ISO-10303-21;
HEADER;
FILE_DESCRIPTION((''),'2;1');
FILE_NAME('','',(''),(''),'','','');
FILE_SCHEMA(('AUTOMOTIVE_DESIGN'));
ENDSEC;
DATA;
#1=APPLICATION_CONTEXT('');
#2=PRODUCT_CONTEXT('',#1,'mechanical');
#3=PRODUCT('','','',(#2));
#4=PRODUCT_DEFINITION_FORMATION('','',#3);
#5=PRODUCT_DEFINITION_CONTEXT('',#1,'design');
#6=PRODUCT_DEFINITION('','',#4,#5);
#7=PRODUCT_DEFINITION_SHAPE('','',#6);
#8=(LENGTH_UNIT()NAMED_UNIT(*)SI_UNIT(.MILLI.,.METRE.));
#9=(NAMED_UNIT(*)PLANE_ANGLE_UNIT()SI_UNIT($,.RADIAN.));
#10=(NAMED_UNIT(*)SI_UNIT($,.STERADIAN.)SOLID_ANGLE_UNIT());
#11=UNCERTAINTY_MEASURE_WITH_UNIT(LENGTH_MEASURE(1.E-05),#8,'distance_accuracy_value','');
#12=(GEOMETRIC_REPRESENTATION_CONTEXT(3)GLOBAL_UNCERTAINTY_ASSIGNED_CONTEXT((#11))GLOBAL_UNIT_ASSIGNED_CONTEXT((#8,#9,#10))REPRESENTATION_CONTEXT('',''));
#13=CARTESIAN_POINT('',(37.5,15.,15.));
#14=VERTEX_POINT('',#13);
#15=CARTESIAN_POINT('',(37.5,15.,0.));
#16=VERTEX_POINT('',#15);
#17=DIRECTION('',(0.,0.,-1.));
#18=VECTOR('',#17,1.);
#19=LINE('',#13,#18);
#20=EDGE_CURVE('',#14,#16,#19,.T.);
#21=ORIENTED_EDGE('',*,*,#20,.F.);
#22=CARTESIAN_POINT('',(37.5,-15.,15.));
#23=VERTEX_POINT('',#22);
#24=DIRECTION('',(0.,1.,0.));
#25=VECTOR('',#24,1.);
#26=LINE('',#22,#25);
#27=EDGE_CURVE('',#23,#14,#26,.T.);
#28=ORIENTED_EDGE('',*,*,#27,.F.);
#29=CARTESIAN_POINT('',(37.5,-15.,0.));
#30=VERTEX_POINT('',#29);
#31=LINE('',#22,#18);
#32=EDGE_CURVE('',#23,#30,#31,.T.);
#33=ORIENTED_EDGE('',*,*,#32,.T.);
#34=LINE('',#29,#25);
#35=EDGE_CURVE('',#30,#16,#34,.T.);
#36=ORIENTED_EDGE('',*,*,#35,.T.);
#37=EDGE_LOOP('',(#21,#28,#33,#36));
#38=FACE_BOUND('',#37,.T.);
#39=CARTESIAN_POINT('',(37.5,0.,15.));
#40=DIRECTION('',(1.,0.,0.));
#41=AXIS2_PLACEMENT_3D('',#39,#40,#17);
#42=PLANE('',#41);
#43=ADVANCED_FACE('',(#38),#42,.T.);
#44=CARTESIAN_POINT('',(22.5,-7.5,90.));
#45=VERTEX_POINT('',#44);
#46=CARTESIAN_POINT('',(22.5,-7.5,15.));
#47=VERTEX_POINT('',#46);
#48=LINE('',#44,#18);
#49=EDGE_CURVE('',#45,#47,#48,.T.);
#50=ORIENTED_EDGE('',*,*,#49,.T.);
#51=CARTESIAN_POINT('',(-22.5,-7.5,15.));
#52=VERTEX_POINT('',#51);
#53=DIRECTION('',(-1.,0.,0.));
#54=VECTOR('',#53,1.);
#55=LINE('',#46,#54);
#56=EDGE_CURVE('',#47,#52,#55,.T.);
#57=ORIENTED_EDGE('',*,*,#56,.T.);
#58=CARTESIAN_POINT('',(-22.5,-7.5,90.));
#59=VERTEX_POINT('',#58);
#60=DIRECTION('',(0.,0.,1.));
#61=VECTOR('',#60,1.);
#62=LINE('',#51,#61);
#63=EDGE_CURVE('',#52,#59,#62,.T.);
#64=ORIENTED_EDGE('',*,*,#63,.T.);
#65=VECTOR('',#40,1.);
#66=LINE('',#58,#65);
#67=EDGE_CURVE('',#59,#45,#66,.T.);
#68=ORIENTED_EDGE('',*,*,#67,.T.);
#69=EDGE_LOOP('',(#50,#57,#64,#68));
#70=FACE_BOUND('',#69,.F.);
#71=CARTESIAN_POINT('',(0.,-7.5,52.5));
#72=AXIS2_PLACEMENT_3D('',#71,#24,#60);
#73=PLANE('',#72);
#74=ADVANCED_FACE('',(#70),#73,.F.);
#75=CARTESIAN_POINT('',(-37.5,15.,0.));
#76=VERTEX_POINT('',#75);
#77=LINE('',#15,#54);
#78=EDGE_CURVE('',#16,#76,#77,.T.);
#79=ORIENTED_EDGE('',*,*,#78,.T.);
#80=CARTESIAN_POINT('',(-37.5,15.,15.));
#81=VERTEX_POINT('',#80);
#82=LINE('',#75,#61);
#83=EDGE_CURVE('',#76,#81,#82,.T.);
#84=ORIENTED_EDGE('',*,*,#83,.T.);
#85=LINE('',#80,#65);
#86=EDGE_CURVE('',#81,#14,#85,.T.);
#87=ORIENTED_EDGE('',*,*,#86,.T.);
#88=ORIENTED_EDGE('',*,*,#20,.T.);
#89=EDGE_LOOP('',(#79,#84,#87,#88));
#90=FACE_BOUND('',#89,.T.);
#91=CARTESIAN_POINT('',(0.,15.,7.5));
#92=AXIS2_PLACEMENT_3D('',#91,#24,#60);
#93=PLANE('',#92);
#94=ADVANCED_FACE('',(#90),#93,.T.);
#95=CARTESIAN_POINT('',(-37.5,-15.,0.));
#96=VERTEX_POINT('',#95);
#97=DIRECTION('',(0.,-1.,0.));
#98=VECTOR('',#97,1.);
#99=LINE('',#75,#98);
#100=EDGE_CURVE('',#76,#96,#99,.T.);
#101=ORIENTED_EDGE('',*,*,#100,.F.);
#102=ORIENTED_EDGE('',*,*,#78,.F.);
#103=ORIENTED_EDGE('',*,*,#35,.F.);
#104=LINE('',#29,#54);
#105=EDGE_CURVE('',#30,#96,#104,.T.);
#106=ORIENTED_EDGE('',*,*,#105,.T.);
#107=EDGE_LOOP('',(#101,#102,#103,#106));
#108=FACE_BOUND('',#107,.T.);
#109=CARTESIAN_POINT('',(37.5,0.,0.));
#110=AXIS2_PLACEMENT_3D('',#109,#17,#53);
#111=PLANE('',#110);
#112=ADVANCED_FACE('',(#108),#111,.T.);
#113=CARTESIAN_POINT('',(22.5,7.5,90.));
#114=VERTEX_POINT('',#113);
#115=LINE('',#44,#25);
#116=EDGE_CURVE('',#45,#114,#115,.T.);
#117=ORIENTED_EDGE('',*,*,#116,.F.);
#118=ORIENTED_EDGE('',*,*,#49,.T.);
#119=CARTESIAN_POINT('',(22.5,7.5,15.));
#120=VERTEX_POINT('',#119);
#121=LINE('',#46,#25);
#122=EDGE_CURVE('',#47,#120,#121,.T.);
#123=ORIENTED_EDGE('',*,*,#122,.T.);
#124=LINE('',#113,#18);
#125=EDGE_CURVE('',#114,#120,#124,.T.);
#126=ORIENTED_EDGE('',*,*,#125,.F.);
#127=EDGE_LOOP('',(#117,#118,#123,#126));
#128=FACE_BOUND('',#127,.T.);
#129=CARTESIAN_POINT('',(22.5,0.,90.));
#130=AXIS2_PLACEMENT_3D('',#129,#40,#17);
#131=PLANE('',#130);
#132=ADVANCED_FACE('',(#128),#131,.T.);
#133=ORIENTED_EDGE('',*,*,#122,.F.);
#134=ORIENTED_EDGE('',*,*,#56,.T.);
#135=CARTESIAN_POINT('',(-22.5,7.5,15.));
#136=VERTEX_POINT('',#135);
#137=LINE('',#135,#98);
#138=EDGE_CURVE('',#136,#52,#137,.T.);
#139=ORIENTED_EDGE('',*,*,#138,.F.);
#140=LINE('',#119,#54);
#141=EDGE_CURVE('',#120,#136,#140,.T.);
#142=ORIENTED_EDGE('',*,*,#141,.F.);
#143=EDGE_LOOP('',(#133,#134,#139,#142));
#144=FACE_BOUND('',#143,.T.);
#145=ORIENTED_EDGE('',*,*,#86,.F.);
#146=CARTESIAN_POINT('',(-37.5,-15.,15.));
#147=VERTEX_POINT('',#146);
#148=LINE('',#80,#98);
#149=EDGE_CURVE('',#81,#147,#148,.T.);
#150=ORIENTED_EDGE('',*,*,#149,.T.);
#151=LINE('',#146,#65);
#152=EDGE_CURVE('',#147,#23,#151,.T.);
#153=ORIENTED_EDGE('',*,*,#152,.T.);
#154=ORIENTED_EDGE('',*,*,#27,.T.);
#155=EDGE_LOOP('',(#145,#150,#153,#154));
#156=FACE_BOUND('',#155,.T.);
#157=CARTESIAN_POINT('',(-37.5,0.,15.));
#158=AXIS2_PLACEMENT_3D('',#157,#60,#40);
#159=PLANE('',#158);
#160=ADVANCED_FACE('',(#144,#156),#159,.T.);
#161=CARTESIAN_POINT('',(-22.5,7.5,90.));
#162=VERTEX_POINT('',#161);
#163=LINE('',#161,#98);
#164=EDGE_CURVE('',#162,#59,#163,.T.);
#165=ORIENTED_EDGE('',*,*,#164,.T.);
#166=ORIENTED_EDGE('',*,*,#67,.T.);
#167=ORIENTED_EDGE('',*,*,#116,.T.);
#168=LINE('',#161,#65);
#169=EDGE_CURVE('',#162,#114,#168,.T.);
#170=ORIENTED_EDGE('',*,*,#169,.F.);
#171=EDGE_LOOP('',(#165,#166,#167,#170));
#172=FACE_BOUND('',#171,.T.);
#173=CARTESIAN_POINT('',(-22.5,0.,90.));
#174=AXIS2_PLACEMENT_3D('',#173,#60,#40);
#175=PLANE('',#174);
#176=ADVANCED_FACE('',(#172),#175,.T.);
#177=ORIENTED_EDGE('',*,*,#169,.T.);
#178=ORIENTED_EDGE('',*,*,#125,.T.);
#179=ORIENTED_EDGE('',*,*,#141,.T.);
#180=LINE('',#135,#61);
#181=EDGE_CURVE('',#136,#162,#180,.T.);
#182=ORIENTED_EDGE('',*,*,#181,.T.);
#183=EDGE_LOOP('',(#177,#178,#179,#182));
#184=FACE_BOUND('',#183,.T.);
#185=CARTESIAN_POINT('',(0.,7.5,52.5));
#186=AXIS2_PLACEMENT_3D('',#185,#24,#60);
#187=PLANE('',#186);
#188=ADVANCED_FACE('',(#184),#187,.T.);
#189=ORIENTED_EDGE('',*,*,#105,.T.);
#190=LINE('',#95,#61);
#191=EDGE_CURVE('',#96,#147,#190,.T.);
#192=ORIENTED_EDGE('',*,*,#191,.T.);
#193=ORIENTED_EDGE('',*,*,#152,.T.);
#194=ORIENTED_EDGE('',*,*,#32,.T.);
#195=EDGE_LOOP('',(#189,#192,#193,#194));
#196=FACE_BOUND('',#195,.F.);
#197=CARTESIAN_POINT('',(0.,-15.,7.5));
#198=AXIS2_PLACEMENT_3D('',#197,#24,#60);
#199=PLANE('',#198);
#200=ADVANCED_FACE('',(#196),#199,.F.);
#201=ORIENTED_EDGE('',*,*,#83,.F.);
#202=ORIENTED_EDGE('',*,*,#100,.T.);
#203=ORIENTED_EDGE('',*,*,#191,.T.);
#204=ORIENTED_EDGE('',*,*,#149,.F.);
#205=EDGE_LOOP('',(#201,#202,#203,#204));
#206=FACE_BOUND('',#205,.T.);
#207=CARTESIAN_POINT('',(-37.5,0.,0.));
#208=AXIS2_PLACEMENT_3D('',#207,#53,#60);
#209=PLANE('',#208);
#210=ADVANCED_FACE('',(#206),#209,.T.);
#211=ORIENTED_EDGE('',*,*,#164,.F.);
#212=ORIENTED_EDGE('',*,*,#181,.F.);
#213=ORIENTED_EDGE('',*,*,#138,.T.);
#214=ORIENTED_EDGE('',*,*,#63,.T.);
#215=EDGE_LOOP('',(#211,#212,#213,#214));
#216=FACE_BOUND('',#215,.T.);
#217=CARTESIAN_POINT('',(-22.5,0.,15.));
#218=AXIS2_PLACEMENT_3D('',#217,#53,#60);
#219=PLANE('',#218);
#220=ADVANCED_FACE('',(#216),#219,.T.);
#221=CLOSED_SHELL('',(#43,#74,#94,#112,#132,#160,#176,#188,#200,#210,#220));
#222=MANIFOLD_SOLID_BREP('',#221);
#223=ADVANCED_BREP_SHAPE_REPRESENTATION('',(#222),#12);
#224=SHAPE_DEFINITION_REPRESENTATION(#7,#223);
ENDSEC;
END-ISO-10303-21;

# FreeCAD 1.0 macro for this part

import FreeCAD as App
import Part
import Sketcher

V = App.Vector


def add_polygon(sketch, points):
    """Adds a closed chain of lines whose ends are joined by coincident constraints."""
    first, n = sketch.GeometryCount, len(points)
    for a, b in zip(points, points[1:] + points[:1]):
        sketch.addGeometry(Part.LineSegment(App.Vector(*a, 0), App.Vector(*b, 0)), False)
    for i in range(n):
        sketch.addConstraint(Sketcher.Constraint("Coincident", first + i, 2, first + (i + 1) % n, 1))

doc = App.newDocument("Part")
params = doc.addObject("Spreadsheet::Sheet", "Params")
for row, (alias, value) in enumerate([
    ("sketch1_height", "15 mm"),
    ("pad1_length", "30 mm"),
    ("sketch2_width", "45 mm"),
    ("sketch2_height", "75 mm"),
    ("pad2_length", "15 mm"),
], start=1):
    params.set(f"A{row}", alias)
    params.set(f"B{row}", "=" + value)
    params.setAlias(f"B{row}", alias)

body = doc.addObject("PartDesign::Body", "Body")

sketch1 = body.newObject("Sketcher::SketchObject", "Sketch")
sketch1.AttachmentSupport = (doc.getObject("XZ_Plane"), [""])
sketch1.MapMode = "FlatFace"
add_polygon(sketch1, [(37.5, 15), (-37.5, 15), (-37.5, 0), (37.5, 0)])
sketch1.addConstraint([
    Sketcher.Constraint("Horizontal", 0),
    Sketcher.Constraint("Vertical", 1),
    Sketcher.Constraint("Horizontal", 2),
    Sketcher.Constraint("Vertical", 3),
    Sketcher.Constraint("Symmetric", 1, 2, 2, 2, -1, 1),
    Sketcher.Constraint("DistanceX", 0, 2, -1, 1, 37.5),
    Sketcher.Constraint("DistanceY", 1, 2, 1, 1, 15.0),
])
sketch1.setExpression("Constraints[10]", "Params.sketch1_height")
pad1 = body.newObject("PartDesign::Pad", "Pad")
pad1.Profile = sketch1
pad1.setExpression("Length", "Params.pad1_length")
pad1.Midplane = True

sketch2 = body.newObject("Sketcher::SketchObject", "Sketch001")
sketch2.AttachmentSupport = (doc.getObject("XZ_Plane"), [""])
sketch2.MapMode = "FlatFace"
add_polygon(sketch2, [(22.5, 90), (-22.5, 90), (-22.5, 15), (22.5, 15)])
sketch2.addConstraint([
    Sketcher.Constraint("Horizontal", 0),
    Sketcher.Constraint("Vertical", 1),
    Sketcher.Constraint("Horizontal", 2),
    Sketcher.Constraint("Vertical", 3),
    Sketcher.Constraint("DistanceX", 0, 2, 0, 1, 45.0),
    Sketcher.Constraint("DistanceY", 1, 2, 1, 1, 75.0),
    Sketcher.Constraint("DistanceY", -1, 1, 0, 2, 90.0),
    Sketcher.Constraint("DistanceX", 0, 2, -1, 1, 22.5),
])
sketch2.setExpression("Constraints[8]", "Params.sketch2_width")
sketch2.setExpression("Constraints[9]", "Params.sketch2_height")
pad2 = body.newObject("PartDesign::Pad", "Pad001")
pad2.Profile = sketch2
pad2.setExpression("Length", "Params.pad2_length")
pad2.Midplane = True

doc.recompute()
